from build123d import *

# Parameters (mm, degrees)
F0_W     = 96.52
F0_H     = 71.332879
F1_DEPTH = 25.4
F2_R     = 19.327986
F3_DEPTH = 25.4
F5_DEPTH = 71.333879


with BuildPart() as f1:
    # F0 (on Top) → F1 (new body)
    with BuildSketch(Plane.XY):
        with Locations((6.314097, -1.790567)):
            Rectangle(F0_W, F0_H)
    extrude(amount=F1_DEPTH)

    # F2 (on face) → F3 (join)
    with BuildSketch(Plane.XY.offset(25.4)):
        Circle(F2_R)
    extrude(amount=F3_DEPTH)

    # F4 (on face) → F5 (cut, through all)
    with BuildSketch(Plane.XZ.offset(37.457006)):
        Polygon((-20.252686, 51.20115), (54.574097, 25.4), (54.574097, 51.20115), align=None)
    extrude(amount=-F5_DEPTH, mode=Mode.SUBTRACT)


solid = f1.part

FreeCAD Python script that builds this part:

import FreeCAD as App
import Part
import Sketcher

V = App.Vector
Q = App.Units.Quantity


def add_polygon(sketch, points):
    """Adds a closed chain of lines whose ends are joined by coincident constraints."""
    first, n = sketch.GeometryCount, len(points)
    for a, b in zip(points, points[1:] + points[:1]):
        sketch.addGeometry(Part.LineSegment(App.Vector(*a, 0), App.Vector(*b, 0)), False)
    for i in range(n):
        sketch.addConstraint(Sketcher.Constraint("Coincident", first + i, 2, first + (i + 1) % n, 1))

doc = App.newDocument("Part")
body = doc.addObject("PartDesign::Body", "Body")

# Sketch on XY plane
sketch1 = doc.addObject("Sketcher::SketchObject", "Sketch")
body.addObject(sketch1)
sketch1.AttachmentSupport = (doc.XY_Plane, [""])
sketch1.MapMode = "FlatFace"
add_polygon(sketch1, [(-41.945903, 33.875872), (-41.945903, -37.457006), (54.574097, -37.457006), (54.574097, 33.875872)])  # lines 0-3
sketch1.addConstraint([
    Sketcher.Constraint("Vertical", 0),
    Sketcher.Constraint("Horizontal", 1),
    Sketcher.Constraint("Vertical", 2),
    Sketcher.Constraint("Horizontal", 3),
    Sketcher.Constraint("DistanceX", 1, 1, 1, 2, Q("3.8 in")),
    Sketcher.Constraint("DistanceY", 0, 2, 0, 1, Q("71.332879 mm")),
    Sketcher.Constraint("DistanceX", 0, 2, -1, 1, Q("41.945903 mm")),
    Sketcher.Constraint("DistanceY", 0, 2, -1, 1, Q("37.457006 mm")),
])
pad1 = doc.addObject("PartDesign::Pad", "Pad")
body.addObject(pad1)
pad1.Profile = sketch1
pad1.Length = Q("1 in")

# Sketch on XY plane
sketch2 = doc.addObject("Sketcher::SketchObject", "Sketch001")
body.addObject(sketch2)
sketch2.AttachmentSupport = (doc.XY_Plane, [""])
sketch2.MapMode = "FlatFace"
sketch2.AttachmentOffset = App.Placement(V(0, 0, 1 * 25.4), App.Rotation())
sketch2.addGeometry(Part.Circle(V(0, 0, 0), V(0, 0, 1), 19.327986), False)
sketch2.addConstraint([
    Sketcher.Constraint("Coincident", 0, 3, -1, 1),
    Sketcher.Constraint("Diameter", 0, Q("38.655972 mm")),
])
pad2 = doc.addObject("PartDesign::Pad", "Pad001")
body.addObject(pad2)
pad2.Profile = sketch2
pad2.Length = Q("1 in")

# Sketch on XZ plane
sketch3 = doc.addObject("Sketcher::SketchObject", "Sketch002")
body.addObject(sketch3)
sketch3.AttachmentSupport = (doc.XZ_Plane, [""])
sketch3.MapMode = "FlatFace"
sketch3.AttachmentOffset = App.Placement(V(0, 0, 37.457006), App.Rotation())
add_polygon(sketch3, [(-20.252686, 51.20115), (54.574097, 25.4), (54.574097, 51.20115)])  # lines 0-2
sketch3.addConstraint([
    Sketcher.Constraint("Vertical", 1),
    Sketcher.Constraint("Horizontal", 2),
    Sketcher.Constraint("DistanceY", -1, 1, 0, 2, Q("1 in")),
    Sketcher.Constraint("DistanceY", 1, 1, 1, 2, Q("25.80115 mm")),
    Sketcher.Constraint("DistanceX", 2, 2, 2, 1, Q("74.826783 mm")),
    Sketcher.Constraint("DistanceX", -1, 1, 0, 2, Q("54.574097 mm")),
])
pocket1 = doc.addObject("PartDesign::Pocket", "Pocket")
body.addObject(pocket1)
pocket1.Profile = sketch3
pocket1.Type = "ThroughAll"

doc.recompute()
